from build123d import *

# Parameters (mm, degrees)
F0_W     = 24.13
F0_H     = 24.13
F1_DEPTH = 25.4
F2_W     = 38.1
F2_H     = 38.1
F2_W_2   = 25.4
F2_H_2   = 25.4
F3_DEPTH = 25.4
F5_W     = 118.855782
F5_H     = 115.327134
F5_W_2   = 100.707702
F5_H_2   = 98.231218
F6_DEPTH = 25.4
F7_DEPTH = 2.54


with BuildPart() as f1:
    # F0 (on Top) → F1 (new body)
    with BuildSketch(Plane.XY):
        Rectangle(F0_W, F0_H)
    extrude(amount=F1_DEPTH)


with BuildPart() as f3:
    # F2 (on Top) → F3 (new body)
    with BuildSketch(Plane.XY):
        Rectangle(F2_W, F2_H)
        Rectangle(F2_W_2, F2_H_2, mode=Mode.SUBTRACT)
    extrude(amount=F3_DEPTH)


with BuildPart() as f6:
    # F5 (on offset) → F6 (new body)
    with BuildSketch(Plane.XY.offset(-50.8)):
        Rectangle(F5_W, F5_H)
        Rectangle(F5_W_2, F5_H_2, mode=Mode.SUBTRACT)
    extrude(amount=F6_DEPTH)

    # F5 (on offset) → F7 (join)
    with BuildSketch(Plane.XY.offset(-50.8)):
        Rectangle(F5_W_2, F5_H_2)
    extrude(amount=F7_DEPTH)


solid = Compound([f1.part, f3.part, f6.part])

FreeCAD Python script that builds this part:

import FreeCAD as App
import Part
import Sketcher
Q = App.Units.Quantity


def add_polygon(sketch, points):
    """Adds a closed chain of lines whose ends are joined by coincident constraints."""
    first, n = sketch.GeometryCount, len(points)
    for a, b in zip(points, points[1:] + points[:1]):
        sketch.addGeometry(Part.LineSegment(App.Vector(*a, 0), App.Vector(*b, 0)), False)
    for i in range(n):
        sketch.addConstraint(Sketcher.Constraint("Coincident", first + i, 2, first + (i + 1) % n, 1))

doc = App.newDocument("Part")
body = doc.addObject("PartDesign::Body", "Body")

# Sketch on XY plane
sketch1 = doc.addObject("Sketcher::SketchObject", "Sketch")
body.addObject(sketch1)
sketch1.AttachmentSupport = (doc.XY_Plane, [""])
sketch1.MapMode = "FlatFace"
add_polygon(sketch1, [(-12, 12), (-12, -12), (12, -12), (12, 12)])  # lines 0-3
sketch1.addConstraint(Sketcher.Constraint("Vertical", 0))
sketch1.addConstraint(Sketcher.Constraint("Horizontal", 1))
sketch1.addConstraint(Sketcher.Constraint("Vertical", 2))
sketch1.addConstraint(Sketcher.Constraint("Horizontal", 3))
sketch1.addConstraint(Sketcher.Constraint("Symmetric", 0, 2, 2, 2, -1, 1))
sketch1.addConstraint(Sketcher.Constraint("Equal", 3, 0))
sketch1.addConstraint(Sketcher.Constraint("DistanceX", 1, 1, 1, 2, Q("0.95 in")))
pad1 = doc.addObject("PartDesign::Pad", "Pad")
body.addObject(pad1)
pad1.Profile = sketch1
pad1.Length = Q("1 in")
body2 = doc.addObject("PartDesign::Body", "Body001")

# Sketch on XY plane
sketch2 = doc.addObject("Sketcher::SketchObject", "Sketch001")
body2.addObject(sketch2)
sketch2.AttachmentSupport = (doc.getObject("XY_Plane001"), [""])
sketch2.MapMode = "FlatFace"
add_polygon(sketch2, [(-19, 19), (-19, -19), (19, -19), (19, 19)])  # lines 0-3
add_polygon(sketch2, [(13, -13), (-13, -13), (-13, 13), (13, 13)])  # lines 4-7
sketch2.addConstraint(Sketcher.Constraint("Vertical", 0))
sketch2.addConstraint(Sketcher.Constraint("Horizontal", 1))
sketch2.addConstraint(Sketcher.Constraint("Vertical", 2))
sketch2.addConstraint(Sketcher.Constraint("Horizontal", 3))
sketch2.addConstraint(Sketcher.Constraint("Horizontal", 4))
sketch2.addConstraint(Sketcher.Constraint("Vertical", 5))
sketch2.addConstraint(Sketcher.Constraint("Horizontal", 6))
sketch2.addConstraint(Sketcher.Constraint("Vertical", 7))
sketch2.addConstraint(Sketcher.Constraint("Symmetric", 0, 2, 2, 2, -1, 1))
sketch2.addConstraint(Sketcher.Constraint("Symmetric", 4, 2, 6, 2, -1, 1))
sketch2.addConstraint(Sketcher.Constraint("Equal", 3, 0))
sketch2.addConstraint(Sketcher.Constraint("Equal", 6, 5))
sketch2.addConstraint(Sketcher.Constraint("DistanceX", 4, 2, 4, 1, Q("1 in")))
sketch2.addConstraint(Sketcher.Constraint("DistanceX", 1, 1, 1, 2, Q("1.5 in")))
pad2 = doc.addObject("PartDesign::Pad", "Pad001")
body2.addObject(pad2)
pad2.Profile = sketch2
pad2.Length = Q("1 in")
body3 = doc.addObject("PartDesign::Body", "Body002")

# Sketch on XY plane
sketch3 = doc.addObject("Sketcher::SketchObject", "Sketch002")
body3.addObject(sketch3)
sketch3.AttachmentSupport = (doc.getObject("XY_Plane002"), [""])
sketch3.MapMode = "FlatFace"
sketch3.AttachmentOffset = App.Placement(App.Vector(0, 0, -2 * 25.4), App.Rotation())
add_polygon(sketch3, [(-59, 58), (-59, -58), (59, -58), (59, 58)])  # lines 0-3
add_polygon(sketch3, [(50, -49), (-50, -49), (-50, 49), (50, 49)])  # lines 4-7
sketch3.addConstraint(Sketcher.Constraint("Vertical", 0))
sketch3.addConstraint(Sketcher.Constraint("Horizontal", 1))
sketch3.addConstraint(Sketcher.Constraint("Vertical", 2))
sketch3.addConstraint(Sketcher.Constraint("Horizontal", 3))
sketch3.addConstraint(Sketcher.Constraint("Horizontal", 4))
sketch3.addConstraint(Sketcher.Constraint("Vertical", 5))
sketch3.addConstraint(Sketcher.Constraint("Horizontal", 6))
sketch3.addConstraint(Sketcher.Constraint("Vertical", 7))
sketch3.addConstraint(Sketcher.Constraint("Symmetric", 0, 2, 2, 2, -1, 1))
sketch3.addConstraint(Sketcher.Constraint("Symmetric", 4, 2, 6, 2, -1, 1))
sketch3.addConstraint(Sketcher.Constraint("DistanceX", 4, 2, 4, 1, 100.707702))
sketch3.addConstraint(Sketcher.Constraint("DistanceY", 5, 1, 5, 2, 98.231218))
sketch3.addConstraint(Sketcher.Constraint("DistanceX", 1, 1, 1, 2, 118.855782))
sketch3.addConstraint(Sketcher.Constraint("DistanceY", 0, 2, 0, 1, 115.327134))
pad3 = doc.addObject("PartDesign::Pad", "Pad002")
body3.addObject(pad3)
pad3.Profile = sketch3
pad3.Length = Q("1 in")

# Sketch on XY plane
sketch4 = doc.addObject("Sketcher::SketchObject", "Sketch003")
body3.addObject(sketch4)
sketch4.AttachmentSupport = (doc.getObject("XY_Plane002"), [""])
sketch4.MapMode = "FlatFace"
sketch4.AttachmentOffset = App.Placement(App.Vector(0, 0, -2 * 25.4), App.Rotation())
add_polygon(sketch4, [(-50, 49), (-50, -49), (50, -49), (50, 49)])  # lines 0-3
sketch4.addConstraint(Sketcher.Constraint("Vertical", 0))
sketch4.addConstraint(Sketcher.Constraint("Horizontal", 1))
sketch4.addConstraint(Sketcher.Constraint("Vertical", 2))
sketch4.addConstraint(Sketcher.Constraint("Horizontal", 3))
sketch4.addConstraint(Sketcher.Constraint("Symmetric", 0, 2, 2, 2, -1, 1))
sketch4.addConstraint(Sketcher.Constraint("DistanceX", 1, 1, 1, 2, 100.707702))
sketch4.addConstraint(Sketcher.Constraint("DistanceY", 0, 2, 0, 1, 98.231218))
pad4 = doc.addObject("PartDesign::Pad", "Pad003")
body3.addObject(pad4)
pad4.Profile = sketch4
pad4.Length = Q("0.1 in")

doc.recompute()
